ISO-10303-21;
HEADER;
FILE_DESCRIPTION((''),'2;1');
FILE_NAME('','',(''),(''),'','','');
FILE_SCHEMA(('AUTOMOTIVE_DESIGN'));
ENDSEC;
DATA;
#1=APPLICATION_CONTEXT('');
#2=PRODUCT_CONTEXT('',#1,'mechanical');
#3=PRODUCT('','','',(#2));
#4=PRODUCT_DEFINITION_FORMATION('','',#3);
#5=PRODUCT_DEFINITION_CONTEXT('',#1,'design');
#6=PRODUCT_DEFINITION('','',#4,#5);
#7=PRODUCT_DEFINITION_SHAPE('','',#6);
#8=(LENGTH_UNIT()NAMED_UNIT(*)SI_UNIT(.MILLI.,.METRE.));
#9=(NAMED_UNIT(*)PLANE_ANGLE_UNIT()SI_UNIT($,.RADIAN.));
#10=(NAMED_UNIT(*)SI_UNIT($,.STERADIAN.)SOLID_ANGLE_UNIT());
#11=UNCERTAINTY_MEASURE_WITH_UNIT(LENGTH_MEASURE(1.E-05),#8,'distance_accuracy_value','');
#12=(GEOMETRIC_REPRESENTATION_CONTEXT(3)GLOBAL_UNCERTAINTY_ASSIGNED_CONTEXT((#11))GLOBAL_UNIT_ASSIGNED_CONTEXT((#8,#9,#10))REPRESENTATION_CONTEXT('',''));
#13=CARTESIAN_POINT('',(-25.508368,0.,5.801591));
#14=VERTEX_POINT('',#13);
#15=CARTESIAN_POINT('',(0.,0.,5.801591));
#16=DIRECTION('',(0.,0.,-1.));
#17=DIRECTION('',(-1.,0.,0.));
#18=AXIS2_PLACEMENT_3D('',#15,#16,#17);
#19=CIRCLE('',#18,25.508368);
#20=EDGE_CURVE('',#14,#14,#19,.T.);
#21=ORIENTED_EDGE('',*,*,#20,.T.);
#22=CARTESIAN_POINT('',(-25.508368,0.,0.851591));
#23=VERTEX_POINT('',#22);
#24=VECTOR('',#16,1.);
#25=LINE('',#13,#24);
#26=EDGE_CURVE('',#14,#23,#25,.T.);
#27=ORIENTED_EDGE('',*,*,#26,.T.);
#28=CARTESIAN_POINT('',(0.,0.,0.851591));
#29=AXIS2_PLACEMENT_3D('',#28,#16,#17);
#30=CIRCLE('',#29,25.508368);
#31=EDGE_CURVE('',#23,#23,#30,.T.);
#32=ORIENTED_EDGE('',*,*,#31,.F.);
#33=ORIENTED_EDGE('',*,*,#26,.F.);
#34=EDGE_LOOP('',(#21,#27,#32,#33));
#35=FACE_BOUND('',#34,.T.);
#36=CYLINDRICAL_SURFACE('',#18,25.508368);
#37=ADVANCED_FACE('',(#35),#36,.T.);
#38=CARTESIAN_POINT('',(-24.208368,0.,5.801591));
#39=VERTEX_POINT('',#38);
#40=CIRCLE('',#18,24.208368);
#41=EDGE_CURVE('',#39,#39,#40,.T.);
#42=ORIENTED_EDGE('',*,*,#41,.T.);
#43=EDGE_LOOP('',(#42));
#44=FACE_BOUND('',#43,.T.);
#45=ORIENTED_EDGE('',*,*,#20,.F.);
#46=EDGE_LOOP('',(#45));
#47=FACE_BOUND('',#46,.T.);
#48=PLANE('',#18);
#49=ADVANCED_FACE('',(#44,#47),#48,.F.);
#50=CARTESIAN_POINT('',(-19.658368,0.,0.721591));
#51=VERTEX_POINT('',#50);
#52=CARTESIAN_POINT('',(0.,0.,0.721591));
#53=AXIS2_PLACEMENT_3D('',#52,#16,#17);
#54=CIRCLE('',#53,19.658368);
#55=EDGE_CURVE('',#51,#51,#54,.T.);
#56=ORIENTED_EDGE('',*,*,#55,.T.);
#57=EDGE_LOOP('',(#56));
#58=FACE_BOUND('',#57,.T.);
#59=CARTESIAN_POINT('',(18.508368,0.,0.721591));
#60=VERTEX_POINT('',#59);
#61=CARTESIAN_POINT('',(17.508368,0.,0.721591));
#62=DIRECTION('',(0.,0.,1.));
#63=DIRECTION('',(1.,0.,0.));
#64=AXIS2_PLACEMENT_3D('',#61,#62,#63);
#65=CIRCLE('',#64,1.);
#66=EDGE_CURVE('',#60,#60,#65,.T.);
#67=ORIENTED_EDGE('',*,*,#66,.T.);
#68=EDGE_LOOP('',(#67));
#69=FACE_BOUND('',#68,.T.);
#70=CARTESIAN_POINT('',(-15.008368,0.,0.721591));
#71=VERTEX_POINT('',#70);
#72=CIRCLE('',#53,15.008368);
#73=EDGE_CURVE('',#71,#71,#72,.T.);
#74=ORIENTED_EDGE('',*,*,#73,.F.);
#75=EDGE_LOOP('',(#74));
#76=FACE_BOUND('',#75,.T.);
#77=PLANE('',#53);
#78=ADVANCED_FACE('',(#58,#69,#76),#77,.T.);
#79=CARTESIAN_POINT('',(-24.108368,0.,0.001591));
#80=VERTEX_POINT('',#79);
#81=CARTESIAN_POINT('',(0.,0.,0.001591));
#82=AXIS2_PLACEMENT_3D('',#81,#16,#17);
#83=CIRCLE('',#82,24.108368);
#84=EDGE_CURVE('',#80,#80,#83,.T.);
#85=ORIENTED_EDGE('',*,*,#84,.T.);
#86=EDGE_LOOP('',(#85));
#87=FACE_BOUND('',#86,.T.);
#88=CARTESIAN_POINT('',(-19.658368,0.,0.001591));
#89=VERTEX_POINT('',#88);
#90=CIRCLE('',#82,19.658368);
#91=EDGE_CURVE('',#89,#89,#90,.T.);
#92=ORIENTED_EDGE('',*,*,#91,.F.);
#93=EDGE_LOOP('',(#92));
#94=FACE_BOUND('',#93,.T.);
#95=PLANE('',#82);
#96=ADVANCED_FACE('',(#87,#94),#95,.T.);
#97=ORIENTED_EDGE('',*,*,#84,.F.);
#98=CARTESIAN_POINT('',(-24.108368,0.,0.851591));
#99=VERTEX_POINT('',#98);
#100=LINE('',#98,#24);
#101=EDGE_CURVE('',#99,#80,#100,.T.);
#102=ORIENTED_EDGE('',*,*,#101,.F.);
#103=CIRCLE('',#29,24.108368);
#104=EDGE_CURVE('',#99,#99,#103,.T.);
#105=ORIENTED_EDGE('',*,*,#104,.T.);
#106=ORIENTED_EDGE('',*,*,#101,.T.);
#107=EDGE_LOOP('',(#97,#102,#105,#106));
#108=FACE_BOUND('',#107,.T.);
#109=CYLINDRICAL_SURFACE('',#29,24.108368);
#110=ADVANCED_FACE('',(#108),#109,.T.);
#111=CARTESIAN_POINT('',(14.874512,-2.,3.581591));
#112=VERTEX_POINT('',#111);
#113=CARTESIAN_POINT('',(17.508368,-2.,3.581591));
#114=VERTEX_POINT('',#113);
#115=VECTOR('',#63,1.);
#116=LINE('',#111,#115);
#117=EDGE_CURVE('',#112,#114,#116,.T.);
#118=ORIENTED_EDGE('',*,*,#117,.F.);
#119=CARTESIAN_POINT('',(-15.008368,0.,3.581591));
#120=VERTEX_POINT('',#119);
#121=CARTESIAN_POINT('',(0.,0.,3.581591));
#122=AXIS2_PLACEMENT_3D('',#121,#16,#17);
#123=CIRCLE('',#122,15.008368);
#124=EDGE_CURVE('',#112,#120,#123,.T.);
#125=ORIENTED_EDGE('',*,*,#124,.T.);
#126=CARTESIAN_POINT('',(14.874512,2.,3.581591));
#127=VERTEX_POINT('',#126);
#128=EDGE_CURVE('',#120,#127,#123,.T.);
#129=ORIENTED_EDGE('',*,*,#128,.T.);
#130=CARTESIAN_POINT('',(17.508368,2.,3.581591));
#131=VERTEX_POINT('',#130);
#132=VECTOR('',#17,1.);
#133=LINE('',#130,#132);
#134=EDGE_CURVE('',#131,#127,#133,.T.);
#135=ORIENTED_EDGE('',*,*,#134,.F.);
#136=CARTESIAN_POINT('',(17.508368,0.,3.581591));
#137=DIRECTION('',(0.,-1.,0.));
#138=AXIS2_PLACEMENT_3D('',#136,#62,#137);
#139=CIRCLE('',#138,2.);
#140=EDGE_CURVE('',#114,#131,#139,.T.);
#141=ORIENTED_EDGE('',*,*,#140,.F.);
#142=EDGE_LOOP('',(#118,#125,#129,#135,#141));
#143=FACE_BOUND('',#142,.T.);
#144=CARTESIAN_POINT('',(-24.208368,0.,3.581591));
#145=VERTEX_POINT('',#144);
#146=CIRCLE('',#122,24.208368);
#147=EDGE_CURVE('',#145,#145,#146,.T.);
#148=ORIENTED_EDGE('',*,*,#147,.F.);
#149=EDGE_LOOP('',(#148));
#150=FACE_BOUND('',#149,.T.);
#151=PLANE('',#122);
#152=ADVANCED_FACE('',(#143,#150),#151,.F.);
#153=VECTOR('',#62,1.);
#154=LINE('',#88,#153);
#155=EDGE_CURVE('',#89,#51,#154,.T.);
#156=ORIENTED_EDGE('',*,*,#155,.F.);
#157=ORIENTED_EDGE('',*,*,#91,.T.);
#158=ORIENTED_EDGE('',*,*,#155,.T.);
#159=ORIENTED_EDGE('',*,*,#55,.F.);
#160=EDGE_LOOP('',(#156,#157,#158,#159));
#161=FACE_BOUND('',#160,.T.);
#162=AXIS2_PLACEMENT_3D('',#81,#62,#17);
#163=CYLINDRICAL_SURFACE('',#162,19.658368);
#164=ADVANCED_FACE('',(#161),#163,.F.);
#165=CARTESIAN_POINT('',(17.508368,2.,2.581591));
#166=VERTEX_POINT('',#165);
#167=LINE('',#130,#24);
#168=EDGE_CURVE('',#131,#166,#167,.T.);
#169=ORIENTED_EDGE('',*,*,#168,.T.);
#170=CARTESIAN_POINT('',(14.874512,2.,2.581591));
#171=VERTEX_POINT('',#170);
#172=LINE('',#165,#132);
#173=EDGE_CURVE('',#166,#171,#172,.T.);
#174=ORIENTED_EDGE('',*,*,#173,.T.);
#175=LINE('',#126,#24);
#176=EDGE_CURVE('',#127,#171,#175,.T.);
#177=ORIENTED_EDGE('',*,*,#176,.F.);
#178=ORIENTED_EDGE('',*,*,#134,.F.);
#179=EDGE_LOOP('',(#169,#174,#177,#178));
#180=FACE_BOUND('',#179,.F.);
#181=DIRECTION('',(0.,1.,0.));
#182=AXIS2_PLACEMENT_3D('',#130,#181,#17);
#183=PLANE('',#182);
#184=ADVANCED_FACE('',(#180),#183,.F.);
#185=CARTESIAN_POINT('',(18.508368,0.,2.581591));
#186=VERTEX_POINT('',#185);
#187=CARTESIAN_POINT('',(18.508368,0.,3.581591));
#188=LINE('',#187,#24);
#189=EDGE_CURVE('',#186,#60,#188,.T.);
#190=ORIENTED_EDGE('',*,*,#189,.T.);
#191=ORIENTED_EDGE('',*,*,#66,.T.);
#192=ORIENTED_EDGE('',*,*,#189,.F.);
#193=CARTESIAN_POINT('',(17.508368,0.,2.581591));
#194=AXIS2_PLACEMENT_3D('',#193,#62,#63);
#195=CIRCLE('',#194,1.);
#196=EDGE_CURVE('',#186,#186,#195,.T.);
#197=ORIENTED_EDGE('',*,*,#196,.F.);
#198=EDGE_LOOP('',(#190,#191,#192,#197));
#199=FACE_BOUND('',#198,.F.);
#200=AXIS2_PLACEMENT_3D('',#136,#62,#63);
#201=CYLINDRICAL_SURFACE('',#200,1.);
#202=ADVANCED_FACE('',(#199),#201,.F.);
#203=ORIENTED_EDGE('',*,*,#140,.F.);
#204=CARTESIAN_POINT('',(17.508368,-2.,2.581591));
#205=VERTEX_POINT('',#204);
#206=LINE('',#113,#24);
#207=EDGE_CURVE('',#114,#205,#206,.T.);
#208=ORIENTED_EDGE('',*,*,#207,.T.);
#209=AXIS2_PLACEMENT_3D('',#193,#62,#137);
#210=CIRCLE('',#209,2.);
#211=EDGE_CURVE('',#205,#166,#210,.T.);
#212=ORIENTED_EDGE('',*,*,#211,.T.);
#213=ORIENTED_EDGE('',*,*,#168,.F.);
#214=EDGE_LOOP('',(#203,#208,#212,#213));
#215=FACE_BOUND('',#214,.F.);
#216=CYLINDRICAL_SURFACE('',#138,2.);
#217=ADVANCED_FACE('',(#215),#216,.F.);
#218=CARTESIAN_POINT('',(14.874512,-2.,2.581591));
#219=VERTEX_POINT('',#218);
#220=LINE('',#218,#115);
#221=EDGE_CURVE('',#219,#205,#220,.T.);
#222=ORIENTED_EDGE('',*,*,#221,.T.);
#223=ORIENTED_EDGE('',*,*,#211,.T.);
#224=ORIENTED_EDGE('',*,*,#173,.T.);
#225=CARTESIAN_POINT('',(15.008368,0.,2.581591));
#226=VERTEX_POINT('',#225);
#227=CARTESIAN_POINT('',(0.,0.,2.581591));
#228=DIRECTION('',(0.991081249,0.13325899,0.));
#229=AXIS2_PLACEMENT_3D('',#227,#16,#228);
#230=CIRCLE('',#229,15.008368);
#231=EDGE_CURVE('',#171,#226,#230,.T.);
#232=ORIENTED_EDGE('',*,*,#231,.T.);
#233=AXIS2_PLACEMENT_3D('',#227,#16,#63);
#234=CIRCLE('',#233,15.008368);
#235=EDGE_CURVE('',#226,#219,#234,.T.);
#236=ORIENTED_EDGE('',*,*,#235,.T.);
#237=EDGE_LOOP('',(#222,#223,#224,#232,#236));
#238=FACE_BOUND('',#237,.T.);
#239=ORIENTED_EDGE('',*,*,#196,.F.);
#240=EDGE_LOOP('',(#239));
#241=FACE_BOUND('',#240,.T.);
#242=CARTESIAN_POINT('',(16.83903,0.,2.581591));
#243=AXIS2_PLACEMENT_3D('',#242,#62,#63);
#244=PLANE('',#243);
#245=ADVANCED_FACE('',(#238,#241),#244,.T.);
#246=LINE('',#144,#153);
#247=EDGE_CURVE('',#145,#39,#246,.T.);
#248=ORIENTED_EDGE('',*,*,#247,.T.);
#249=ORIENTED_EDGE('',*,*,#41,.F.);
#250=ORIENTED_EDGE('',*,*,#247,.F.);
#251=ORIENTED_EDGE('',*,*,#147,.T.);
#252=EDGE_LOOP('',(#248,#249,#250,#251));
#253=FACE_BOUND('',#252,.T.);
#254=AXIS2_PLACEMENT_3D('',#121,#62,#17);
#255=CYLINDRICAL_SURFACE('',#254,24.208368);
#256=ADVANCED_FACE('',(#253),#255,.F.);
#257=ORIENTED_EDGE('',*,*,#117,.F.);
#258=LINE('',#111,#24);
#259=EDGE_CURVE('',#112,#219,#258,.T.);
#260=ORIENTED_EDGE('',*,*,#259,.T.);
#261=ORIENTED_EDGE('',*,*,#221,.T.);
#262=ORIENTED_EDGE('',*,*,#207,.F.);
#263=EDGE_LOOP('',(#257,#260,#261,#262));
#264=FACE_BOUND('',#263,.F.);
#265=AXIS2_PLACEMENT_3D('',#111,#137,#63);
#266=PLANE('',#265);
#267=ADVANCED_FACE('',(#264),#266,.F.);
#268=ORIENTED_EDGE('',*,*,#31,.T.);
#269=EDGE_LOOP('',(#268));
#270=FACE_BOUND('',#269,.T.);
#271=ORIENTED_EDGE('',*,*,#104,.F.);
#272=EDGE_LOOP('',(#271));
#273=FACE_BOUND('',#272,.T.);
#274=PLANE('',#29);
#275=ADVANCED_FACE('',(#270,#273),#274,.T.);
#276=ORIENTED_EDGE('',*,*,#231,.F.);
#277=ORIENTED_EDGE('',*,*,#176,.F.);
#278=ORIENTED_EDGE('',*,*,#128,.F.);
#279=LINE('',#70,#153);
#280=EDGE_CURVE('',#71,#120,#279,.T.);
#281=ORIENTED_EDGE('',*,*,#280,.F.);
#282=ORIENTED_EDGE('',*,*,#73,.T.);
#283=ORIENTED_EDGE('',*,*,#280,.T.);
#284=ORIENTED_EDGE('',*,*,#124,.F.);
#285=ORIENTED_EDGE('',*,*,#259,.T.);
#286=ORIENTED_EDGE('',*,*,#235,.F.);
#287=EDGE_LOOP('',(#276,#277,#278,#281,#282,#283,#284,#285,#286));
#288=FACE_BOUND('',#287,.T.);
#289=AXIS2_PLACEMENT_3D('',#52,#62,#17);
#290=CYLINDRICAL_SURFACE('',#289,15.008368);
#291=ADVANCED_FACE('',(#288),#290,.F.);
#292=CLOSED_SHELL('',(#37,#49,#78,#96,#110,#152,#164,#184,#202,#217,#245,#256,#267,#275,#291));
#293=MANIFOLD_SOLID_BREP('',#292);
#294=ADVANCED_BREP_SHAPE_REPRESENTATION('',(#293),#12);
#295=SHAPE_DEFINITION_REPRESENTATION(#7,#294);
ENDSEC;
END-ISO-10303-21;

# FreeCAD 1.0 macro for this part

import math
import FreeCAD as App
import Part
import Sketcher

V = App.Vector
Q = App.Units.Quantity


def add_polygon(sketch, points):
    """Adds a closed chain of lines whose ends are joined by coincident constraints."""
    first, n = sketch.GeometryCount, len(points)
    for a, b in zip(points, points[1:] + points[:1]):
        sketch.addGeometry(Part.LineSegment(App.Vector(*a, 0), App.Vector(*b, 0)), False)
    for i in range(n):
        sketch.addConstraint(Sketcher.Constraint("Coincident", first + i, 2, first + (i + 1) % n, 1))

doc = App.newDocument("Part")
params = doc.addObject("Spreadsheet::Sheet", "Params")
for row, (alias, value) in enumerate([
    ("sketch1_width", "1.3 mm"),
    ("sketch1_width2", "1.4 mm"),
    ("sketch1_width3", "9.2 mm"),
    ("sketch1_width4", "4.45 mm"),
    ("sketch1_height", "4.95 mm"),
    ("revolution_angle", "360 deg"),
    ("sketch2_diameter", "2 mm"),
    ("sketch2_radius", "2 mm"),
    ("pocket1_length", "1 mm"),
    ("sketch3_diameter", "2 mm"),
    ("pocket2_length", "2.86 mm"),
], start=1):
    params.set(f"A{row}", alias)
    params.set(f"B{row}", "=" + value)
    params.setAlias(f"B{row}", alias)

body = doc.addObject("PartDesign::Body", "Body")

sketch1 = body.newObject("Sketcher::SketchObject", "Sketch")
sketch1.AttachmentSupport = (doc.getObject("XZ_Plane"), [""])
sketch1.MapMode = "FlatFace"
add_polygon(sketch1, [(-24.2, 5.8), (-25.5, 5.8), (-25.5, 0.9), (-24.1, 0.9), (-24.1, 0), (-19.7, 0), (-19.7, 0.7), (-15, 0.7), (-15, 3.6), (-24.2, 3.6)])
sketch1.addConstraint([
    Sketcher.Constraint("Horizontal", 0),
    Sketcher.Constraint("Vertical", 1),
    Sketcher.Constraint("Horizontal", 2),
    Sketcher.Constraint("Vertical", 3),
    Sketcher.Constraint("Horizontal", 4),
    Sketcher.Constraint("Vertical", 5),
    Sketcher.Constraint("Horizontal", 6),
    Sketcher.Constraint("Vertical", 7),
    Sketcher.Constraint("Horizontal", 8),
    Sketcher.Constraint("Vertical", 9),
    Sketcher.Constraint("DistanceX", 0, 2, 0, 1, Q("1.3 mm")),
    Sketcher.Constraint("DistanceX", 2, 1, 2, 2, Q("1.4 mm")),
    Sketcher.Constraint("DistanceX", 8, 2, 8, 1, Q("9.2 mm")),
    Sketcher.Constraint("DistanceX", 4, 1, 4, 2, Q("4.45 mm")),
    Sketcher.Constraint("DistanceY", 1, 2, 1, 1, Q("4.95 mm")),
    Sketcher.Constraint("DistanceY", 3, 2, 3, 1, Q("0.85 mm")),
    Sketcher.Constraint("DistanceY", 5, 1, 5, 2, Q("0.72 mm")),
    Sketcher.Constraint("DistanceY", 7, 1, 7, 2, Q("2.86 mm")),
    Sketcher.Constraint("DistanceX", 0, 2, -1, 1, Q("25.508368 mm")),
    Sketcher.Constraint("DistanceY", -1, 1, 0, 2, Q("5.801591 mm")),
])
sketch1.setExpression("Constraints[20]", "Params.sketch1_width")
sketch1.setExpression("Constraints[21]", "Params.sketch1_width2")
sketch1.setExpression("Constraints[22]", "Params.sketch1_width3")
sketch1.setExpression("Constraints[23]", "Params.sketch1_width4")
sketch1.setExpression("Constraints[24]", "Params.sketch1_height")
revolution = body.newObject("PartDesign::Revolution", "Revolution")
revolution.Profile = sketch1
revolution.ReferenceAxis = (sketch1, ["V_Axis"])
revolution.setExpression("Angle", "Params.revolution_angle")

sketch2 = body.newObject("Sketcher::SketchObject", "Sketch001")
sketch2.AttachmentSupport = (doc.getObject("XY_Plane"), [""])
sketch2.MapMode = "FlatFace"
sketch2.AttachmentOffset = App.Placement(V(0, 0, 3.581591), App.Rotation())
sketch2.addGeometry([
    Part.LineSegment(V(14.9, -2, 0), V(17.5, -2, 0)),
    Part.ArcOfCircle(Part.Circle(V(17.5, 0, 0), V(0, 0, 1), 2), math.radians(-90), math.radians(90)),
    Part.LineSegment(V(17.5, 2, 0), V(14.9, 2, 0)),
    Part.ArcOfCircle(Part.Circle(V(0, 0, 0), V(0, 0, 1), 15), math.radians(0), math.radians(7.66)),
    Part.ArcOfCircle(Part.Circle(V(0, 0, 0), V(0, 0, 1), 15), math.radians(-7.66), math.radians(0)),
    Part.Circle(V(17.5, 0, 0), V(0, 0, 1), 1),
], False)
sketch2.addConstraint([
    Sketcher.Constraint("Tangent", 0, 2, 1, 1),
    Sketcher.Constraint("Tangent", 1, 2, 2, 1),
    Sketcher.Constraint("Coincident", 2, 2, 3, 2),
    Sketcher.Constraint("Tangent", 3, 1, 4, 2),
    Sketcher.Constraint("Coincident", 4, 1, 0, 1),
    Sketcher.Constraint("Horizontal", 0),
    Sketcher.Constraint("Horizontal", 2),
    Sketcher.Constraint("Coincident", 3, 3, -1, 1),
    Sketcher.Constraint("Coincident", 5, 3, 1, 3),
    Sketcher.Constraint("Equal", 3, 4),
    Sketcher.Constraint("PointOnObject", 1, 3, -1),
    Sketcher.Constraint("PointOnObject", 3, 1, -1),
    Sketcher.Constraint("Diameter", 5, Q("2 mm")),
    Sketcher.Constraint("Radius", 1, Q("2 mm")),
    Sketcher.Constraint("DistanceX", 3, 1, 1, 3, Q("2.5 mm")),
    Sketcher.Constraint("Radius", 3, Q("15.008368 mm")),
])
sketch2.setExpression("Constraints[12]", "Params.sketch2_diameter")
sketch2.setExpression("Constraints[13]", "Params.sketch2_radius")
pocket1 = body.newObject("PartDesign::Pocket", "Pocket")
pocket1.Profile = sketch2
pocket1.setExpression("Length", "Params.pocket1_length")

sketch3 = body.newObject("Sketcher::SketchObject", "Sketch002")
sketch3.AttachmentSupport = (doc.getObject("XY_Plane"), [""])
sketch3.MapMode = "FlatFace"
sketch3.AttachmentOffset = App.Placement(V(0, 0, 3.581591), App.Rotation())
sketch3.addGeometry(Part.Circle(V(17.5, 0, 0), V(0, 0, 1), 1), False)
sketch3.addConstraint([
    Sketcher.Constraint("PointOnObject", 0, 3, -1),
    Sketcher.Constraint("Diameter", 0, Q("2 mm")),
    Sketcher.Constraint("DistanceX", -1, 1, 0, 3, Q("17.508368 mm")),
])
sketch3.setExpression("Constraints[1]", "Params.sketch3_diameter")
pocket2 = body.newObject("PartDesign::Pocket", "Pocket001")
pocket2.Profile = sketch3
pocket2.setExpression("Length", "Params.pocket2_length")

doc.recompute()
